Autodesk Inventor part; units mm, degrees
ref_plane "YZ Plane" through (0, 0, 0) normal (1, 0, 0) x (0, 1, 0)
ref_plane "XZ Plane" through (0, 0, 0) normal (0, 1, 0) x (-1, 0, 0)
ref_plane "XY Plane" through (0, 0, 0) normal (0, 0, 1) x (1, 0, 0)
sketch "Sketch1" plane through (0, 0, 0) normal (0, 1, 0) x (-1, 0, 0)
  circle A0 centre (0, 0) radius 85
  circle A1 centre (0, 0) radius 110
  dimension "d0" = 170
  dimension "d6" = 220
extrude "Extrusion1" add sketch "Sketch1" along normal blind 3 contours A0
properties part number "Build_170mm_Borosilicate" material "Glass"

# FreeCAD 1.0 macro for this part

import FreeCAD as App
import Part
import Sketcher
from FreeCAD import Vector

doc = App.newDocument("Part")
body = doc.addObject("PartDesign::Body", "Body")

# Sketch on XZ plane
sketch1 = body.newObject("Sketcher::SketchObject", "Sketch")
sketch1.AttachmentSupport = (doc.getObject("XZ_Plane"), [""])
sketch1.MapMode = "FlatFace"
sketch1.addGeometry(Part.Circle(Vector(0, 0, 0), Vector(0, 0, 1), 85), False)
sketch1.addConstraint([
    Sketcher.Constraint("Coincident", 0, 3, -1, 1),
    Sketcher.Constraint("Diameter", 0, 170.0),
])
pad1 = body.newObject("PartDesign::Pad", "Pad")
pad1.Profile = sketch1
pad1.Length = 3
pad1.Reversed = True

doc.recompute()
